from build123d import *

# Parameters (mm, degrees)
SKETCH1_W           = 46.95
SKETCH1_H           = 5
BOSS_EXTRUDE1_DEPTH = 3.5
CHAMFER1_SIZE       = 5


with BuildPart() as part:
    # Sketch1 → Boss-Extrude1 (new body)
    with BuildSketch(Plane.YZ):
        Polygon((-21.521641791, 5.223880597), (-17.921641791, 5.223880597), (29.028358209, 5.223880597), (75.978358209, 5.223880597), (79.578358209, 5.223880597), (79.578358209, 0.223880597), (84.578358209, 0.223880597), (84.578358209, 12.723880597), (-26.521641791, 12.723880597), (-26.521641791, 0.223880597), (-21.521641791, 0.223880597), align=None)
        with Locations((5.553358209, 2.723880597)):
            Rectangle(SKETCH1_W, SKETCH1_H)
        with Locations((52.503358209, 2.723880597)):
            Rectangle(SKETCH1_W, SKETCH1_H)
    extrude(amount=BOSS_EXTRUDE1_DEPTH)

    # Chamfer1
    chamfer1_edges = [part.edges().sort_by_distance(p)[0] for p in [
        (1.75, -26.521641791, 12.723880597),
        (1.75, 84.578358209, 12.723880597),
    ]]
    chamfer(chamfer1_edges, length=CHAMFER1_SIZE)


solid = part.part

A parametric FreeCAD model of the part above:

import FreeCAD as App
import Part
import Sketcher
from FreeCAD import Vector


def edges_at(feature, points):
    """Names of the edges that pass closest to the given points."""
    edges = feature.Shape.Edges
    near = lambda p: min(range(len(edges)), key=lambda i: edges[i].distToShape(Part.Vertex(*p))[0])
    return sorted({f"Edge{near(p) + 1}" for p in points})


def add_polygon(sketch, points):
    """Adds a closed chain of lines whose ends are joined by coincident constraints."""
    first, n = sketch.GeometryCount, len(points)
    for a, b in zip(points, points[1:] + points[:1]):
        sketch.addGeometry(Part.LineSegment(App.Vector(*a, 0), App.Vector(*b, 0)), False)
    for i in range(n):
        sketch.addConstraint(Sketcher.Constraint("Coincident", first + i, 2, first + (i + 1) % n, 1))

doc = App.newDocument("Part")
body = doc.addObject("PartDesign::Body", "Body")

# Sketch on YZ plane
sketch1 = body.newObject("Sketcher::SketchObject", "Sketch")
sketch1.AttachmentSupport = (doc.getObject("YZ_Plane"), [""])
sketch1.MapMode = "FlatFace"
add_polygon(sketch1, [(-21.521642, 5.223881), (-17.921642, 5.223881), (-17.921642, 0.223881), (75.978358, 0.223881), (75.978358, 5.223881), (79.578358, 5.223881), (79.578358, 0.223881), (84.578358, 0.223881), (84.578358, 12.723881), (-26.521642, 12.723881), (-26.521642, 0.223881), (-21.521642, 0.223881)])  # lines 0-11
sketch1.addConstraint([
    Sketcher.Constraint("Horizontal", 0),
    Sketcher.Constraint("Vertical", 1),
    Sketcher.Constraint("Horizontal", 2),
    Sketcher.Constraint("Vertical", 3),
    Sketcher.Constraint("Horizontal", 4),
    Sketcher.Constraint("Vertical", 5),
    Sketcher.Constraint("Horizontal", 6),
    Sketcher.Constraint("Vertical", 7),
    Sketcher.Constraint("Horizontal", 8),
    Sketcher.Constraint("Vertical", 9),
    Sketcher.Constraint("Horizontal", 10),
    Sketcher.Constraint("Vertical", 11),
    Sketcher.Constraint("Horizontal", 0, 2, 3, 2),
    Sketcher.Constraint("Horizontal", 2, 2, 5, 2),
    Sketcher.Constraint("Horizontal", 6, 2, 9, 2),
    Sketcher.Constraint("Equal", 0, 4),
    Sketcher.Constraint("Equal", 6, 10),
    Sketcher.Constraint("Equal", 10, 1),
    Sketcher.Constraint("DistanceX", 6, 1, 6, 2, 5.0),
    Sketcher.Constraint("DistanceX", 0, 1, 0, 2, 3.6),
    Sketcher.Constraint("DistanceX", 2, 1, 2, 2, 93.9),
    Sketcher.Constraint("DistanceY", 7, 1, 7, 2, 12.5),
    Sketcher.Constraint("DistanceX", 0, 2, -1, 1, 17.921642),
    Sketcher.Constraint("DistanceY", -1, 1, 0, 2, 5.223881),
])
pad1 = body.newObject("PartDesign::Pad", "Pad")
pad1.Profile = sketch1
pad1.Length = 3.5
doc.recompute()

chamfer = body.newObject("PartDesign::Chamfer", "Chamfer")
chamfer.Base = (pad1, edges_at(pad1, [(1.75, -26.522, 12.724), (1.75, 84.578, 12.724)]))
chamfer.Size = 5

doc.recompute()
